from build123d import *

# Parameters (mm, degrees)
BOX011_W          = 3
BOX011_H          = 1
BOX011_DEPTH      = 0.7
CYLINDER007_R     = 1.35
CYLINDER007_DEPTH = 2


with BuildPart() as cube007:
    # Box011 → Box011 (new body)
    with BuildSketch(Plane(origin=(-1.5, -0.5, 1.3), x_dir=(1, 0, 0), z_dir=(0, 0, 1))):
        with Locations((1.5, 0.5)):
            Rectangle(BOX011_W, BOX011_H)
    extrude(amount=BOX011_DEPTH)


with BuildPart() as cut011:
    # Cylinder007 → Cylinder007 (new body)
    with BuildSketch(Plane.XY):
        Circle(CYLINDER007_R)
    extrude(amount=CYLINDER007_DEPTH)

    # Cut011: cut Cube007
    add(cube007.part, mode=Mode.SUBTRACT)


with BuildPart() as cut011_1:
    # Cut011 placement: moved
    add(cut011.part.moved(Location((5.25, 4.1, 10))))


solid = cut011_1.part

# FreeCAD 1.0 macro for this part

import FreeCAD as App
import Part
import Sketcher


def add_polygon(sketch, points):
    """Adds a closed chain of lines whose ends are joined by coincident constraints."""
    first, n = sketch.GeometryCount, len(points)
    for a, b in zip(points, points[1:] + points[:1]):
        sketch.addGeometry(Part.LineSegment(App.Vector(*a, 0), App.Vector(*b, 0)), False)
    for i in range(n):
        sketch.addConstraint(Sketcher.Constraint("Coincident", first + i, 2, first + (i + 1) % n, 1))

doc = App.newDocument("Part")
params = doc.addObject("Spreadsheet::Sheet", "Params")
for row, (alias, value) in enumerate([
    ("sketch1_width", "3 mm"),
    ("sketch1_height", "1 mm"),
    ("pad1_length", "0.7 mm"),
    ("sketch2_diameter", "2.7 mm"),
    ("pad2_length", "2 mm"),
], start=1):
    params.set(f"A{row}", alias)
    params.set(f"B{row}", "=" + value)
    params.setAlias(f"B{row}", alias)

body = doc.addObject("PartDesign::Body", "Body")

# Sketch on XY plane
sketch1 = body.newObject("Sketcher::SketchObject", "Sketch")
sketch1.AttachmentSupport = (doc.getObject("XY_Plane"), [""])
sketch1.MapMode = "FlatFace"
sketch1.AttachmentOffset = App.Placement(App.Vector(0, 0, 1.3), App.Rotation())
add_polygon(sketch1, [(-1.5, 0.5), (-1.5, -0.5), (1.5, -0.5), (1.5, 0.5)])  # lines 0-3
sketch1.addConstraint([
    Sketcher.Constraint("Vertical", 0),
    Sketcher.Constraint("Horizontal", 1),
    Sketcher.Constraint("Vertical", 2),
    Sketcher.Constraint("Horizontal", 3),
    Sketcher.Constraint("Symmetric", 0, 2, 2, 2, -1, 1),
    Sketcher.Constraint("DistanceX", 1, 1, 1, 2, 3.0),
    Sketcher.Constraint("DistanceY", 0, 2, 0, 1, 1.0),
])
sketch1.setExpression("Constraints[9]", "Params.sketch1_width")
sketch1.setExpression("Constraints[10]", "Params.sketch1_height")
pad1 = body.newObject("PartDesign::Pad", "Pad")
pad1.Profile = sketch1
pad1.setExpression("Length", "Params.pad1_length")
body2 = doc.addObject("PartDesign::Body", "Body001")

# Sketch on XY plane
sketch2 = body2.newObject("Sketcher::SketchObject", "Sketch001")
sketch2.AttachmentSupport = (doc.getObject("XY_Plane001"), [""])
sketch2.MapMode = "FlatFace"
sketch2.addGeometry(Part.Circle(App.Vector(0, 0, 0), App.Vector(0, 0, 1), 1.35), False)
sketch2.addConstraint([
    Sketcher.Constraint("Coincident", 0, 3, -1, 1),
    Sketcher.Constraint("Diameter", 0, 2.7),
])
sketch2.setExpression("Constraints[1]", "Params.sketch2_diameter")
pad2 = body2.newObject("PartDesign::Pad", "Pad001")
pad2.Profile = sketch2
pad2.setExpression("Length", "Params.pad2_length")
doc.recompute()

boolean = body2.newObject("PartDesign::Boolean", "Boolean")
boolean.Type = "Cut"
boolean.addObjects([body])
body3 = doc.addObject("PartDesign::Body", "Body002")
doc.recompute()

body2.Placement = App.Placement(App.Vector(5.25, 4.1, 10), App.Rotation(App.Vector(0, 0, 1), 0))
boolean2 = body3.newObject("PartDesign::Boolean", "Boolean001")
boolean2.Type = "Fuse"
boolean2.addObjects([body2])

doc.recompute()
